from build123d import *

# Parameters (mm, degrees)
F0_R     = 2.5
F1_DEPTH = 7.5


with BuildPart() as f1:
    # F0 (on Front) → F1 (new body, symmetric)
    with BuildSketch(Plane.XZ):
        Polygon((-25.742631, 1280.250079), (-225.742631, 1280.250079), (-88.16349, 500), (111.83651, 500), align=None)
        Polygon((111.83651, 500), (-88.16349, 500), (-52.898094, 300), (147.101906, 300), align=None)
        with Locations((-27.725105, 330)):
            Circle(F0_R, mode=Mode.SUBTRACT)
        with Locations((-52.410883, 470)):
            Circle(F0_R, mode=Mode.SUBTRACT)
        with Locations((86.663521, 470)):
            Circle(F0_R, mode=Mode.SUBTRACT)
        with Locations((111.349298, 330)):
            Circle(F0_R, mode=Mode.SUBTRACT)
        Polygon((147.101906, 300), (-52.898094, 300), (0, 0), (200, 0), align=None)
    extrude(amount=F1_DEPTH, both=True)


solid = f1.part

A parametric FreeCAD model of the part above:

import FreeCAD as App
import Part
import Sketcher

V = App.Vector
Q = App.Units.Quantity

doc = App.newDocument("Part")
body = doc.addObject("PartDesign::Body", "Body")

# Sketch on XZ plane
sketch1 = body.newObject("Sketcher::SketchObject", "Sketch")
sketch1.AttachmentSupport = (doc.getObject("XZ_Plane"), [""])
sketch1.MapMode = "FlatFace"
sketch1.addGeometry([
    Part.LineSegment(V(-25.742631, 1280.250079, 0), V(-225.742631, 1280.250079, 0)),  # 0
    Part.LineSegment(V(-225.742631, 1280.250079, 0), V(-88.16349, 500, 0)),  # 1
    Part.LineSegment(V(-88.16349, 500, 0), V(0, 0, 0)),  # 2
    Part.LineSegment(V(0, 0, 0), V(200, 0, 0)),  # 3
    Part.LineSegment(V(200, 0, 0), V(111.83651, 500, 0)),  # 4
    Part.LineSegment(V(111.83651, 500, 0), V(-25.742631, 1280.250079, 0)),  # 5
    Part.Circle(V(-27.725105, 330, 0), V(0, 0, 1), 2.5),  # 6
    Part.Circle(V(111.349298, 330, 0), V(0, 0, 1), 2.5),  # 7
    Part.Circle(V(-52.410883, 470, 0), V(0, 0, 1), 2.5),  # 8
    Part.Circle(V(86.663521, 470, 0), V(0, 0, 1), 2.5),  # 9
], False)
sketch1.addConstraint([
    Sketcher.Constraint("Coincident", 0, 2, 1, 1),
    Sketcher.Constraint("Coincident", 1, 2, 2, 1),
    Sketcher.Constraint("Coincident", 2, 2, 3, 1),
    Sketcher.Constraint("Coincident", 3, 2, 4, 1),
    Sketcher.Constraint("Coincident", 4, 2, 5, 1),
    Sketcher.Constraint("Coincident", 5, 2, 0, 1),
    Sketcher.Constraint("Horizontal", 0),
    Sketcher.Constraint("Horizontal", 3),
    Sketcher.Constraint("Coincident", 2, 2, -1, 1),
    Sketcher.Constraint("Equal", 6, 7),
    Sketcher.Constraint("Equal", 7, 8),
    Sketcher.Constraint("Equal", 8, 9),
    Sketcher.Constraint("Parallel", 1, 2),
    Sketcher.Constraint("Parallel", 2, 4),
    Sketcher.Constraint("Parallel", 4, 5),
    Sketcher.Constraint("Horizontal", 6, 3, 7, 3),
    Sketcher.Constraint("Horizontal", 8, 3, 9, 3),
    Sketcher.Constraint("Horizontal", 1, 2, 4, 2),
    Sketcher.Constraint("Diameter", 6, Q("5 mm")),
    Sketcher.Constraint("DistanceX", 0, 2, 0, 1, Q("200 mm")),
    Sketcher.Constraint("Angle", 1, Q("-80 deg")),
    Sketcher.Constraint("DistanceY", -1, 1, 6, 3, Q("330 mm")),
    Sketcher.Constraint("DistanceY", -1, 1, 8, 3, Q("470 mm")),
    Sketcher.Constraint("DistanceY", -1, 1, 1, 2, Q("500 mm")),
    Sketcher.Constraint("DistanceX", -1, 1, 7, 3, Q("111.349298 mm")),
    Sketcher.Constraint("DistanceX", -1, 1, 9, 3, Q("86.663521 mm")),
    Sketcher.Constraint("DistanceX", 0, 2, -1, 1, Q("225.742631 mm")),
    Sketcher.Constraint("DistanceX", 8, 3, 7, 3, Q("163.760181 mm")),
    Sketcher.Constraint("DistanceX", 6, 3, -1, 1, Q("27.725105 mm")),
])
pad1 = body.newObject("PartDesign::Pad", "Pad")
pad1.Profile = sketch1
pad1.Length = 15
pad1.Midplane = True

doc.recompute()
